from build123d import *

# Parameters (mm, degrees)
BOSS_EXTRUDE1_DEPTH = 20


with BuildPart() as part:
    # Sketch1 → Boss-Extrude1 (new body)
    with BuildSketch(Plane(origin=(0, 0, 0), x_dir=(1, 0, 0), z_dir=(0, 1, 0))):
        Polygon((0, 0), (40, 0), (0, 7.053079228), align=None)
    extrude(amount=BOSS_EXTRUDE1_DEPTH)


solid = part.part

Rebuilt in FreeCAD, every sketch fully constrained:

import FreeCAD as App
import Part
import Sketcher
Q = App.Units.Quantity


def add_polygon(sketch, points):
    """Adds a closed chain of lines whose ends are joined by coincident constraints."""
    first, n = sketch.GeometryCount, len(points)
    for a, b in zip(points, points[1:] + points[:1]):
        sketch.addGeometry(Part.LineSegment(App.Vector(*a, 0), App.Vector(*b, 0)), False)
    for i in range(n):
        sketch.addConstraint(Sketcher.Constraint("Coincident", first + i, 2, first + (i + 1) % n, 1))

doc = App.newDocument("Part")
body = doc.addObject("PartDesign::Body", "Body")

sketch1 = body.newObject("Sketcher::SketchObject", "Sketch")
sketch1.AttachmentSupport = (doc.getObject("XZ_Plane"), [""])
sketch1.MapMode = "FlatFace"
add_polygon(sketch1, [(0, 0), (40, 0), (0, -7)])
sketch1.addConstraint(Sketcher.Constraint("Horizontal", 0))
sketch1.addConstraint(Sketcher.Constraint("Vertical", 2))
sketch1.addConstraint(Sketcher.Constraint("Coincident", 2, 2, -1, 1))
sketch1.addConstraint(Sketcher.Constraint("DistanceX", 0, 1, 0, 2, 40.0))
sketch1.addConstraint(Sketcher.Constraint("Angle", 1, Q("-170 deg")))
pad1 = body.newObject("PartDesign::Pad", "Pad")
pad1.Profile = sketch1
pad1.Length = 20
pad1.Reversed = True

doc.recompute()
